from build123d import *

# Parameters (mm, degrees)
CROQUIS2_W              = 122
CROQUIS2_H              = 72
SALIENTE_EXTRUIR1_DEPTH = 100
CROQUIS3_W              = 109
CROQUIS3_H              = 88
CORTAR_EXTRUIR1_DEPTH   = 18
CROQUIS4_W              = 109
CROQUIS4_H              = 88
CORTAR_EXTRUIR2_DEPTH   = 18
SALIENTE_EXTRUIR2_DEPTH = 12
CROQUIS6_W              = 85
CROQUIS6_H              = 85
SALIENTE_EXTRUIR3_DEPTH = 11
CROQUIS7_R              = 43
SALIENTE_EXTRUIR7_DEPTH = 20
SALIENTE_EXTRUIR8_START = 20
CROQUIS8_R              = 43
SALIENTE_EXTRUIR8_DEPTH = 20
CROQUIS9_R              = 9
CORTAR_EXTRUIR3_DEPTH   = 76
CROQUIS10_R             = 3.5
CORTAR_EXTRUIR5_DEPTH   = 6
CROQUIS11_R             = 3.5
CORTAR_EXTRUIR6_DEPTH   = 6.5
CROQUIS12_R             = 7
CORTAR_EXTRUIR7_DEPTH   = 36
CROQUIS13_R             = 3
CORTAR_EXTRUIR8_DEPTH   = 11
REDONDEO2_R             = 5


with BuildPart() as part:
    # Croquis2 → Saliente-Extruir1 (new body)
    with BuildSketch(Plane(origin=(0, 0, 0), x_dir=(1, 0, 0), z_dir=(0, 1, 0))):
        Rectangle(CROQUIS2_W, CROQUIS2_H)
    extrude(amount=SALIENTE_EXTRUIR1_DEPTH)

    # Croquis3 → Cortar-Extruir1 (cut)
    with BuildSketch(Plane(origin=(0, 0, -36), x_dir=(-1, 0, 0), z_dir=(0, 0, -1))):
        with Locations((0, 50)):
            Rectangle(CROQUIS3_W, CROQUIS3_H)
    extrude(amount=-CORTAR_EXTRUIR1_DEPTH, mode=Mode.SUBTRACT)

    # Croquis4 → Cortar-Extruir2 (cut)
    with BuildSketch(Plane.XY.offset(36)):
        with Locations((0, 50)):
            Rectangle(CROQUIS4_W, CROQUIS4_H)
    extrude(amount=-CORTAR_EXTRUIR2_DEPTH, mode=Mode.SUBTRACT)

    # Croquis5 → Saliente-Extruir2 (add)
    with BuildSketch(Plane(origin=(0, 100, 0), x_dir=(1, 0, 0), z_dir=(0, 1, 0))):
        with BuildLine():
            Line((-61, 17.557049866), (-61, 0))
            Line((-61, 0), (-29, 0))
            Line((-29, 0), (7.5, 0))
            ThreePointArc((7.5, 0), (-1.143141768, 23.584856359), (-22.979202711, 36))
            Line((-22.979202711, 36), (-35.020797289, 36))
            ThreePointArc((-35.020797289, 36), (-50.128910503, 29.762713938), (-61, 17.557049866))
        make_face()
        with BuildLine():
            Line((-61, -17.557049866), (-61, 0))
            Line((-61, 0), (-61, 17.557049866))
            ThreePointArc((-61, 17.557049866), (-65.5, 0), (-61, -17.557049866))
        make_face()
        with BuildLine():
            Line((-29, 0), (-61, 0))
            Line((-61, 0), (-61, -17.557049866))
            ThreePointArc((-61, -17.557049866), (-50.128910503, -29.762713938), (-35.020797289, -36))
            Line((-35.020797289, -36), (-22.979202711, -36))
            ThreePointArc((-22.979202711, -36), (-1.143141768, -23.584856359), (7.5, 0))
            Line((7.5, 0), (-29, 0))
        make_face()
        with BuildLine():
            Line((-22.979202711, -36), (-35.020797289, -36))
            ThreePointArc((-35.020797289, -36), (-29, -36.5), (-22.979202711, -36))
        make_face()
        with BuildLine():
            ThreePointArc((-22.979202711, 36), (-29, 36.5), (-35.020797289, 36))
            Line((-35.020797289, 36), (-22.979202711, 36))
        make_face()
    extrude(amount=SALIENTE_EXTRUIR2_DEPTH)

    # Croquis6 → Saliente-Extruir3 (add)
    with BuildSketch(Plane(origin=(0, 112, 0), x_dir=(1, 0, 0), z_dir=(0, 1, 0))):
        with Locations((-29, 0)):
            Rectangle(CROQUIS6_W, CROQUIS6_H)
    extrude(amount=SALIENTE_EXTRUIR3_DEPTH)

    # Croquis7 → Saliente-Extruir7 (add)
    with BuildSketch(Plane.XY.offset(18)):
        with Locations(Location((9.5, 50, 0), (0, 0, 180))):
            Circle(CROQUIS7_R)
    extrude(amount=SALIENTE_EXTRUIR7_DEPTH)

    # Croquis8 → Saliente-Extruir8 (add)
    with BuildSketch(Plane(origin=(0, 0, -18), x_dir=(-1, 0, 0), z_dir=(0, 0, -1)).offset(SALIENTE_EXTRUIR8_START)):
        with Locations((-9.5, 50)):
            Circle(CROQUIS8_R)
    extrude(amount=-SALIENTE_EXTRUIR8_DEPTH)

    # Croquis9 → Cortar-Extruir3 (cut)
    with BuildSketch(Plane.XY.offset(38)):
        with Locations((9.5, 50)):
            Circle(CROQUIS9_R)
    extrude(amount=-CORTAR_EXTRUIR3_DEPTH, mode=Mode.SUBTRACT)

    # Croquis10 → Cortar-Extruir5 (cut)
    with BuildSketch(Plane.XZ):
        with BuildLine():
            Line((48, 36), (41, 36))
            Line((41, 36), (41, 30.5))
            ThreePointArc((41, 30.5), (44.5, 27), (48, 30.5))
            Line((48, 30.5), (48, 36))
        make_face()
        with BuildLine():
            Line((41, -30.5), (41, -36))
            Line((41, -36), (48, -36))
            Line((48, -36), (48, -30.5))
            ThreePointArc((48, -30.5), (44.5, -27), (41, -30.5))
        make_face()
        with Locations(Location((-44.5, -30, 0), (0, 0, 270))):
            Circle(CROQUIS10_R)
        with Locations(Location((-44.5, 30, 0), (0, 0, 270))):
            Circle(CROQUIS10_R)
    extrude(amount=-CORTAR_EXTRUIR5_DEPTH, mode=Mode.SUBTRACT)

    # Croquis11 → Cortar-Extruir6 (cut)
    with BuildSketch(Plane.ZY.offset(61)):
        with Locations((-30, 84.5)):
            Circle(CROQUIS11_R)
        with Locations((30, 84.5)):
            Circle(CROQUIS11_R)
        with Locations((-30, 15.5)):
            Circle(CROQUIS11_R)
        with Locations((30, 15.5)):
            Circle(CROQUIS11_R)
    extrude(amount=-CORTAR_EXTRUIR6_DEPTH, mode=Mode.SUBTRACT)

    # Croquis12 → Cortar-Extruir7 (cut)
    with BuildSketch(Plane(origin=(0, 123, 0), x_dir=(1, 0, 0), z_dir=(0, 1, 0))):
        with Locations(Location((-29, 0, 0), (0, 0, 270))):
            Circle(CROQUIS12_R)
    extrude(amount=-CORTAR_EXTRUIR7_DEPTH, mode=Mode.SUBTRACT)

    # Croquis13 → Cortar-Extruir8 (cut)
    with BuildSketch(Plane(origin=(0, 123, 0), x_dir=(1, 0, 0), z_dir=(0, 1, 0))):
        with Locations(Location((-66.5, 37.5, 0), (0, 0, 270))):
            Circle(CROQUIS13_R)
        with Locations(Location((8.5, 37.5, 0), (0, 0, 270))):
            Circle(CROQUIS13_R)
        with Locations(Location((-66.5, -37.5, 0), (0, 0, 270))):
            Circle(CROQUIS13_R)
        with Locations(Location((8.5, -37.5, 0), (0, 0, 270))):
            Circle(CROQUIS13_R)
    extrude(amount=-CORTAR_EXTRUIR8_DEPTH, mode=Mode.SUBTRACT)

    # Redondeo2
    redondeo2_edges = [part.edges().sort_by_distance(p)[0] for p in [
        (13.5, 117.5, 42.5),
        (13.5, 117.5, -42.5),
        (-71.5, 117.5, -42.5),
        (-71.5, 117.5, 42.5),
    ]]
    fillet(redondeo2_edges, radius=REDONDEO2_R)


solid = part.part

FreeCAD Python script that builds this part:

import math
import FreeCAD as App
import Part
import Sketcher

V = App.Vector
Q = App.Units.Quantity


def edges_at(feature, points):
    """Names of the edges that pass closest to the given points."""
    edges = feature.Shape.Edges
    near = lambda p: min(range(len(edges)), key=lambda i: edges[i].distToShape(Part.Vertex(*p))[0])
    return sorted({f"Edge{near(p) + 1}" for p in points})

doc = App.newDocument("Part")
body = doc.addObject("PartDesign::Body", "Body")

sketch1 = doc.addObject("Sketcher::SketchObject", "Sketch")
body.addObject(sketch1)
sketch1.AttachmentSupport = (doc.XZ_Plane, [""])
sketch1.MapMode = "FlatFace"
sketch1.addGeometry([
    Part.LineSegment(V(-61, -36, 0), V(-61, 36, 0)),
    Part.LineSegment(V(-61, 36, 0), V(61, 36, 0)),
    Part.LineSegment(V(61, 36, 0), V(61, -36, 0)),
    Part.LineSegment(V(61, -36, 0), V(-61, -36, 0)),
], False)
sketch1.addConstraint([
    Sketcher.Constraint("Coincident", 0, 2, 1, 1),
    Sketcher.Constraint("Coincident", 1, 2, 2, 1),
    Sketcher.Constraint("Coincident", 2, 2, 3, 1),
    Sketcher.Constraint("Coincident", 3, 2, 0, 1),
    Sketcher.Constraint("Vertical", 0),
    Sketcher.Constraint("Horizontal", 1),
    Sketcher.Constraint("Vertical", 2),
    Sketcher.Constraint("Horizontal", 3),
    Sketcher.Constraint("Symmetric", 0, 2, 2, 2, -1, 1),
    Sketcher.Constraint("DistanceX", 1, 1, 1, 2, Q("122 mm")),
    Sketcher.Constraint("DistanceY", 0, 1, 0, 2, Q("72 mm")),
])
pad1 = doc.addObject("PartDesign::Pad", "Pad")
body.addObject(pad1)
pad1.Profile = sketch1
pad1.Length = 100
pad1.Reversed = True

sketch2 = doc.addObject("Sketcher::SketchObject", "Sketch001")
body.addObject(sketch2)
sketch2.AttachmentSupport = (doc.XY_Plane, [""])
sketch2.MapMode = "FlatFace"
sketch2.AttachmentOffset = App.Placement(V(0, 0, -36), App.Rotation())
sketch2.addGeometry([
    Part.LineSegment(V(54.5, 94, 0), V(54.5, 6, 0)),
    Part.LineSegment(V(54.5, 6, 0), V(-54.5, 6, 0)),
    Part.LineSegment(V(-54.5, 6, 0), V(-54.5, 94, 0)),
    Part.LineSegment(V(-54.5, 94, 0), V(54.5, 94, 0)),
], False)
sketch2.addConstraint([
    Sketcher.Constraint("Coincident", 0, 2, 1, 1),
    Sketcher.Constraint("Coincident", 1, 2, 2, 1),
    Sketcher.Constraint("Coincident", 2, 2, 3, 1),
    Sketcher.Constraint("Coincident", 3, 2, 0, 1),
    Sketcher.Constraint("Vertical", 0),
    Sketcher.Constraint("Horizontal", 1),
    Sketcher.Constraint("Vertical", 2),
    Sketcher.Constraint("Horizontal", 3),
    Sketcher.Constraint("DistanceX", 1, 2, 1, 1, Q("109 mm")),
    Sketcher.Constraint("DistanceY", 0, 2, 0, 1, Q("88 mm")),
    Sketcher.Constraint("DistanceY", -1, 1, 0, 2, Q("6 mm")),
    Sketcher.Constraint("DistanceX", -1, 1, 0, 2, Q("54.5 mm")),
])
pocket1 = doc.addObject("PartDesign::Pocket", "Pocket")
body.addObject(pocket1)
pocket1.Profile = sketch2
pocket1.Length = 18
pocket1.Reversed = True

sketch3 = doc.addObject("Sketcher::SketchObject", "Sketch002")
body.addObject(sketch3)
sketch3.AttachmentSupport = (doc.XY_Plane, [""])
sketch3.MapMode = "FlatFace"
sketch3.AttachmentOffset = App.Placement(V(0, 0, 36), App.Rotation())
sketch3.addGeometry([
    Part.LineSegment(V(-54.5, 94, 0), V(-54.5, 6, 0)),
    Part.LineSegment(V(-54.5, 6, 0), V(54.5, 6, 0)),
    Part.LineSegment(V(54.5, 6, 0), V(54.5, 94, 0)),
    Part.LineSegment(V(54.5, 94, 0), V(-54.5, 94, 0)),
], False)
sketch3.addConstraint([
    Sketcher.Constraint("Coincident", 0, 2, 1, 1),
    Sketcher.Constraint("Coincident", 1, 2, 2, 1),
    Sketcher.Constraint("Coincident", 2, 2, 3, 1),
    Sketcher.Constraint("Coincident", 3, 2, 0, 1),
    Sketcher.Constraint("Vertical", 0),
    Sketcher.Constraint("Horizontal", 1),
    Sketcher.Constraint("Vertical", 2),
    Sketcher.Constraint("Horizontal", 3),
    Sketcher.Constraint("DistanceX", 1, 1, 1, 2, Q("109 mm")),
    Sketcher.Constraint("DistanceY", 0, 2, 0, 1, Q("88 mm")),
    Sketcher.Constraint("DistanceY", -1, 1, 0, 2, Q("6 mm")),
    Sketcher.Constraint("DistanceX", 0, 2, -1, 1, Q("54.5 mm")),
])
pocket2 = doc.addObject("PartDesign::Pocket", "Pocket001")
body.addObject(pocket2)
pocket2.Profile = sketch3
pocket2.Length = 18

sketch4 = doc.addObject("Sketcher::SketchObject", "Sketch003")
body.addObject(sketch4)
sketch4.AttachmentSupport = (doc.XZ_Plane, [""])
sketch4.MapMode = "FlatFace"
sketch4.AttachmentOffset = App.Placement(V(0, 0, -100), App.Rotation())
sketch4.addGeometry([
    Part.ArcOfCircle(Part.Circle(V(-29, 0, 0), V(0, 0, 1), 36.5), math.radians(-80.505475), math.radians(0)),
    Part.ArcOfCircle(Part.Circle(V(-29, 0, 0), V(0, 0, 1), 36.5), math.radians(-99.494525), math.radians(-80.505475)),
    Part.ArcOfCircle(Part.Circle(V(-29, 0, 0), V(0, 0, 1), 36.5), math.radians(-151.248281), math.radians(-99.494525)),
    Part.ArcOfCircle(Part.Circle(V(-29, 0, 0), V(0, 0, 1), 36.5), math.radians(151.248281), math.radians(208.751719)),
    Part.ArcOfCircle(Part.Circle(V(-29, 0, 0), V(0, 0, 1), 36.5), math.radians(99.494525), math.radians(151.248281)),
    Part.ArcOfCircle(Part.Circle(V(-29, 0, 0), V(0, 0, 1), 36.5), math.radians(80.505475), math.radians(99.494525)),
    Part.ArcOfCircle(Part.Circle(V(-29, 0, 0), V(0, 0, 1), 36.5), math.radians(0), math.radians(80.505475)),
], False)
sketch4.addConstraint([
    Sketcher.Constraint("Tangent", 0, 1, 1, 2),
    Sketcher.Constraint("Tangent", 1, 1, 2, 2),
    Sketcher.Constraint("Tangent", 2, 1, 3, 2),
    Sketcher.Constraint("Tangent", 3, 1, 4, 2),
    Sketcher.Constraint("Tangent", 4, 1, 5, 2),
    Sketcher.Constraint("Tangent", 5, 1, 6, 2),
    Sketcher.Constraint("Tangent", 6, 1, 0, 2),
    Sketcher.Constraint("Coincident", 2, 3, 0, 3),
    Sketcher.Constraint("Coincident", 4, 3, 0, 3),
    Sketcher.Constraint("Symmetric", 2, 1, 3, 1, -1),
    Sketcher.Constraint("PointOnObject", 6, 1, -1),
    Sketcher.Constraint("Horizontal", 0, 1, 1, 1),
    Sketcher.Constraint("Horizontal", 4, 1, 5, 1),
    Sketcher.Constraint("Vertical", 1, 1, 4, 1),
    Sketcher.Constraint("Radius", 0, Q("36.5 mm")),
    Sketcher.Constraint("DistanceX", 0, 3, -1, 1, Q("29 mm")),
    Sketcher.Constraint("DistanceY", 0, 1, -1, 1, Q("36 mm")),
    Sketcher.Constraint("DistanceX", 2, 1, -1, 1, Q("61 mm")),
])
pad2 = doc.addObject("PartDesign::Pad", "Pad001")
body.addObject(pad2)
pad2.Profile = sketch4
pad2.Length = 12
pad2.Reversed = True

sketch5 = doc.addObject("Sketcher::SketchObject", "Sketch004")
body.addObject(sketch5)
sketch5.AttachmentSupport = (doc.XZ_Plane, [""])
sketch5.MapMode = "FlatFace"
sketch5.AttachmentOffset = App.Placement(V(0, 0, -112), App.Rotation())
sketch5.addGeometry([
    Part.LineSegment(V(-71.5, -42.5, 0), V(-71.5, 42.5, 0)),
    Part.LineSegment(V(-71.5, 42.5, 0), V(13.5, 42.5, 0)),
    Part.LineSegment(V(13.5, 42.5, 0), V(13.5, -42.5, 0)),
    Part.LineSegment(V(13.5, -42.5, 0), V(-71.5, -42.5, 0)),
], False)
sketch5.addConstraint([
    Sketcher.Constraint("Coincident", 0, 2, 1, 1),
    Sketcher.Constraint("Coincident", 1, 2, 2, 1),
    Sketcher.Constraint("Coincident", 2, 2, 3, 1),
    Sketcher.Constraint("Coincident", 3, 2, 0, 1),
    Sketcher.Constraint("Vertical", 0),
    Sketcher.Constraint("Horizontal", 1),
    Sketcher.Constraint("Vertical", 2),
    Sketcher.Constraint("Horizontal", 3),
    Sketcher.Constraint("Equal", 3, 0),
    Sketcher.Constraint("DistanceX", 1, 1, 1, 2, Q("85 mm")),
    Sketcher.Constraint("DistanceX", 0, 2, -1, 1, Q("71.5 mm")),
    Sketcher.Constraint("DistanceY", -1, 1, 0, 2, Q("42.5 mm")),
])
pad3 = doc.addObject("PartDesign::Pad", "Pad002")
body.addObject(pad3)
pad3.Profile = sketch5
pad3.Length = 11
pad3.Reversed = True

sketch6 = doc.addObject("Sketcher::SketchObject", "Sketch005")
body.addObject(sketch6)
sketch6.AttachmentSupport = (doc.XY_Plane, [""])
sketch6.MapMode = "FlatFace"
sketch6.AttachmentOffset = App.Placement(V(0, 0, 18), App.Rotation())
sketch6.addGeometry(Part.Circle(V(9.5, 50, 0), V(0, 0, 1), 43), False)
sketch6.addConstraint([
    Sketcher.Constraint("Diameter", 0, Q("86 mm")),
    Sketcher.Constraint("DistanceY", -1, 1, 0, 3, Q("50 mm")),
    Sketcher.Constraint("DistanceX", -1, 1, 0, 3, Q("9.5 mm")),
])
pad4 = doc.addObject("PartDesign::Pad", "Pad003")
body.addObject(pad4)
pad4.Profile = sketch6
pad4.Length = 20

sketch7 = doc.addObject("Sketcher::SketchObject", "Sketch006")
body.addObject(sketch7)
sketch7.AttachmentSupport = (doc.XY_Plane, [""])
sketch7.MapMode = "FlatFace"
sketch7.AttachmentOffset = App.Placement(V(0, 0, -38), App.Rotation())
sketch7.addGeometry(Part.Circle(V(9.5, 50, 0), V(0, 0, 1), 43), False)
sketch7.addConstraint([
    Sketcher.Constraint("Diameter", 0, Q("86 mm")),
    Sketcher.Constraint("DistanceY", -1, 1, 0, 3, Q("50 mm")),
    Sketcher.Constraint("DistanceX", -1, 1, 0, 3, Q("9.5 mm")),
])
pad5 = doc.addObject("PartDesign::Pad", "Pad004")
body.addObject(pad5)
pad5.Profile = sketch7
pad5.Length = 20

sketch8 = doc.addObject("Sketcher::SketchObject", "Sketch007")
body.addObject(sketch8)
sketch8.AttachmentSupport = (doc.XY_Plane, [""])
sketch8.MapMode = "FlatFace"
sketch8.AttachmentOffset = App.Placement(V(0, 0, 38), App.Rotation())
sketch8.addGeometry(Part.Circle(V(9.5, 50, 0), V(0, 0, 1), 9), False)
sketch8.addConstraint([
    Sketcher.Constraint("Diameter", 0, Q("18 mm")),
    Sketcher.Constraint("DistanceY", -1, 1, 0, 3, Q("50 mm")),
    Sketcher.Constraint("DistanceX", -1, 1, 0, 3, Q("9.5 mm")),
])
pocket3 = doc.addObject("PartDesign::Pocket", "Pocket002")
body.addObject(pocket3)
pocket3.Profile = sketch8
pocket3.Length = 76

sketch9 = doc.addObject("Sketcher::SketchObject", "Sketch008")
body.addObject(sketch9)
sketch9.AttachmentSupport = (doc.XZ_Plane, [""])
sketch9.MapMode = "FlatFace"
sketch9.addGeometry([
    Part.LineSegment(V(48, 36, 0), V(41, 36, 0)),
    Part.LineSegment(V(41, 36, 0), V(41, 30.5, 0)),
    Part.ArcOfCircle(Part.Circle(V(44.5, 30.5, 0), V(0, 0, 1), 3.5), math.radians(180), math.radians(360)),
    Part.LineSegment(V(48, 30.5, 0), V(48, 36, 0)),
    Part.LineSegment(V(41, -30.5, 0), V(41, -36, 0)),
    Part.LineSegment(V(41, -36, 0), V(48, -36, 0)),
    Part.LineSegment(V(48, -36, 0), V(48, -30.5, 0)),
    Part.ArcOfCircle(Part.Circle(V(44.5, -30.5, 0), V(0, 0, 1), 3.5), math.radians(0), math.radians(180)),
    Part.Circle(V(-44.5, -30, 0), V(0, 0, 1), 3.5),
    Part.Circle(V(-44.5, 30, 0), V(0, 0, 1), 3.5),
], False)
sketch9.addConstraint([
    Sketcher.Constraint("Coincident", 0, 2, 1, 1),
    Sketcher.Constraint("Tangent", 1, 2, 2, 1),
    Sketcher.Constraint("Tangent", 2, 2, 3, 1),
    Sketcher.Constraint("Coincident", 3, 2, 0, 1),
    Sketcher.Constraint("Coincident", 4, 2, 5, 1),
    Sketcher.Constraint("Coincident", 5, 2, 6, 1),
    Sketcher.Constraint("Tangent", 6, 2, 7, 1),
    Sketcher.Constraint("Tangent", 7, 2, 4, 1),
    Sketcher.Constraint("Horizontal", 0),
    Sketcher.Constraint("Vertical", 1),
    Sketcher.Constraint("Vertical", 3),
    Sketcher.Constraint("Vertical", 4),
    Sketcher.Constraint("Horizontal", 5),
    Sketcher.Constraint("Vertical", 6),
    Sketcher.Constraint("Equal", 2, 7),
    Sketcher.Constraint("Equal", 7, 8),
    Sketcher.Constraint("Equal", 8, 9),
    Sketcher.Constraint("Symmetric", 2, 3, 7, 3, -1),
    Sketcher.Constraint("Symmetric", 8, 3, 9, 3, -1),
    Sketcher.Constraint("Equal", 3, 4),
    Sketcher.Constraint("Diameter", 8, Q("7 mm")),
    Sketcher.Constraint("DistanceY", 1, 2, 1, 1, Q("5.5 mm")),
    Sketcher.Constraint("DistanceY", 8, 3, -1, 1, Q("30 mm")),
    Sketcher.Constraint("DistanceX", -1, 1, 0, 2, Q("41 mm")),
    Sketcher.Constraint("DistanceY", -1, 1, 0, 2, Q("36 mm")),
    Sketcher.Constraint("DistanceX", 8, 3, 7, 3, Q("89 mm")),
])
pocket4 = doc.addObject("PartDesign::Pocket", "Pocket003")
body.addObject(pocket4)
pocket4.Profile = sketch9
pocket4.Length = 6

sketch10 = doc.addObject("Sketcher::SketchObject", "Sketch009")
body.addObject(sketch10)
sketch10.AttachmentSupport = (doc.YZ_Plane, [""])
sketch10.MapMode = "FlatFace"
sketch10.AttachmentOffset = App.Placement(V(0, 0, -61), App.Rotation())
sketch10.addGeometry([
    Part.Circle(V(84.5, -30, 0), V(0, 0, 1), 3.5),
    Part.Circle(V(84.5, 30, 0), V(0, 0, 1), 3.5),
    Part.Circle(V(15.5, -30, 0), V(0, 0, 1), 3.5),
    Part.Circle(V(15.5, 30, 0), V(0, 0, 1), 3.5),
], False)
sketch10.addConstraint([
    Sketcher.Constraint("Equal", 0, 1),
    Sketcher.Constraint("Equal", 1, 2),
    Sketcher.Constraint("Equal", 2, 3),
    Sketcher.Constraint("Symmetric", 0, 3, 1, 3, -1),
    Sketcher.Constraint("Symmetric", 2, 3, 3, 3, -1),
    Sketcher.Constraint("Horizontal", 0, 3, 2, 3),
    Sketcher.Constraint("Diameter", 0, Q("7 mm")),
    Sketcher.Constraint("DistanceY", 0, 3, -1, 1, Q("30 mm")),
    Sketcher.Constraint("DistanceX", 2, 3, 0, 3, Q("69 mm")),
    Sketcher.Constraint("DistanceX", -1, 1, 0, 3, Q("84.5 mm")),
])
pocket5 = doc.addObject("PartDesign::Pocket", "Pocket004")
body.addObject(pocket5)
pocket5.Profile = sketch10
pocket5.Length = 6.5
pocket5.Reversed = True

sketch11 = doc.addObject("Sketcher::SketchObject", "Sketch010")
body.addObject(sketch11)
sketch11.AttachmentSupport = (doc.XZ_Plane, [""])
sketch11.MapMode = "FlatFace"
sketch11.AttachmentOffset = App.Placement(V(0, 0, -123), App.Rotation())
sketch11.addGeometry(Part.Circle(V(-29, 0, 0), V(0, 0, 1), 7), False)
sketch11.addConstraint([
    Sketcher.Constraint("PointOnObject", 0, 3, -1),
    Sketcher.Constraint("Diameter", 0, Q("14 mm")),
    Sketcher.Constraint("DistanceX", 0, 3, -1, 1, Q("29 mm")),
])
pocket6 = doc.addObject("PartDesign::Pocket", "Pocket005")
body.addObject(pocket6)
pocket6.Profile = sketch11
pocket6.Length = 36
pocket6.Reversed = True

sketch12 = doc.addObject("Sketcher::SketchObject", "Sketch011")
body.addObject(sketch12)
sketch12.AttachmentSupport = (doc.XZ_Plane, [""])
sketch12.MapMode = "FlatFace"
sketch12.AttachmentOffset = App.Placement(V(0, 0, -123), App.Rotation())
sketch12.addGeometry([
    Part.Circle(V(-66.5, -37.5, 0), V(0, 0, 1), 3),
    Part.Circle(V(8.5, -37.5, 0), V(0, 0, 1), 3),
    Part.Circle(V(-66.5, 37.5, 0), V(0, 0, 1), 3),
    Part.Circle(V(8.5, 37.5, 0), V(0, 0, 1), 3),
], False)
sketch12.addConstraint([
    Sketcher.Constraint("Equal", 0, 1),
    Sketcher.Constraint("Equal", 1, 2),
    Sketcher.Constraint("Equal", 2, 3),
    Sketcher.Constraint("Symmetric", 0, 3, 2, 3, -1),
    Sketcher.Constraint("Symmetric", 1, 3, 3, 3, -1),
    Sketcher.Constraint("Horizontal", 0, 3, 1, 3),
    Sketcher.Constraint("Diameter", 0, Q("6 mm")),
    Sketcher.Constraint("DistanceX", 0, 3, 1, 3, Q("75 mm")),
    Sketcher.Constraint("DistanceY", 0, 3, 2, 3, Q("75 mm")),
    Sketcher.Constraint("DistanceX", 0, 3, -1, 1, Q("66.5 mm")),
])
pocket7 = doc.addObject("PartDesign::Pocket", "Pocket006")
body.addObject(pocket7)
pocket7.Profile = sketch12
pocket7.Length = 11
pocket7.Reversed = True
doc.recompute()

fillet = doc.addObject("PartDesign::Fillet", "Fillet")
body.addObject(fillet)
fillet.Base = (pocket7, edges_at(pocket7, [
    (13.5, 117.5, 42.5),
    (13.5, 117.5, -42.5),
    (-71.5, 117.5, -42.5),
    (-71.5, 117.5, 42.5),
]))
fillet.Radius = 5

doc.recompute()
